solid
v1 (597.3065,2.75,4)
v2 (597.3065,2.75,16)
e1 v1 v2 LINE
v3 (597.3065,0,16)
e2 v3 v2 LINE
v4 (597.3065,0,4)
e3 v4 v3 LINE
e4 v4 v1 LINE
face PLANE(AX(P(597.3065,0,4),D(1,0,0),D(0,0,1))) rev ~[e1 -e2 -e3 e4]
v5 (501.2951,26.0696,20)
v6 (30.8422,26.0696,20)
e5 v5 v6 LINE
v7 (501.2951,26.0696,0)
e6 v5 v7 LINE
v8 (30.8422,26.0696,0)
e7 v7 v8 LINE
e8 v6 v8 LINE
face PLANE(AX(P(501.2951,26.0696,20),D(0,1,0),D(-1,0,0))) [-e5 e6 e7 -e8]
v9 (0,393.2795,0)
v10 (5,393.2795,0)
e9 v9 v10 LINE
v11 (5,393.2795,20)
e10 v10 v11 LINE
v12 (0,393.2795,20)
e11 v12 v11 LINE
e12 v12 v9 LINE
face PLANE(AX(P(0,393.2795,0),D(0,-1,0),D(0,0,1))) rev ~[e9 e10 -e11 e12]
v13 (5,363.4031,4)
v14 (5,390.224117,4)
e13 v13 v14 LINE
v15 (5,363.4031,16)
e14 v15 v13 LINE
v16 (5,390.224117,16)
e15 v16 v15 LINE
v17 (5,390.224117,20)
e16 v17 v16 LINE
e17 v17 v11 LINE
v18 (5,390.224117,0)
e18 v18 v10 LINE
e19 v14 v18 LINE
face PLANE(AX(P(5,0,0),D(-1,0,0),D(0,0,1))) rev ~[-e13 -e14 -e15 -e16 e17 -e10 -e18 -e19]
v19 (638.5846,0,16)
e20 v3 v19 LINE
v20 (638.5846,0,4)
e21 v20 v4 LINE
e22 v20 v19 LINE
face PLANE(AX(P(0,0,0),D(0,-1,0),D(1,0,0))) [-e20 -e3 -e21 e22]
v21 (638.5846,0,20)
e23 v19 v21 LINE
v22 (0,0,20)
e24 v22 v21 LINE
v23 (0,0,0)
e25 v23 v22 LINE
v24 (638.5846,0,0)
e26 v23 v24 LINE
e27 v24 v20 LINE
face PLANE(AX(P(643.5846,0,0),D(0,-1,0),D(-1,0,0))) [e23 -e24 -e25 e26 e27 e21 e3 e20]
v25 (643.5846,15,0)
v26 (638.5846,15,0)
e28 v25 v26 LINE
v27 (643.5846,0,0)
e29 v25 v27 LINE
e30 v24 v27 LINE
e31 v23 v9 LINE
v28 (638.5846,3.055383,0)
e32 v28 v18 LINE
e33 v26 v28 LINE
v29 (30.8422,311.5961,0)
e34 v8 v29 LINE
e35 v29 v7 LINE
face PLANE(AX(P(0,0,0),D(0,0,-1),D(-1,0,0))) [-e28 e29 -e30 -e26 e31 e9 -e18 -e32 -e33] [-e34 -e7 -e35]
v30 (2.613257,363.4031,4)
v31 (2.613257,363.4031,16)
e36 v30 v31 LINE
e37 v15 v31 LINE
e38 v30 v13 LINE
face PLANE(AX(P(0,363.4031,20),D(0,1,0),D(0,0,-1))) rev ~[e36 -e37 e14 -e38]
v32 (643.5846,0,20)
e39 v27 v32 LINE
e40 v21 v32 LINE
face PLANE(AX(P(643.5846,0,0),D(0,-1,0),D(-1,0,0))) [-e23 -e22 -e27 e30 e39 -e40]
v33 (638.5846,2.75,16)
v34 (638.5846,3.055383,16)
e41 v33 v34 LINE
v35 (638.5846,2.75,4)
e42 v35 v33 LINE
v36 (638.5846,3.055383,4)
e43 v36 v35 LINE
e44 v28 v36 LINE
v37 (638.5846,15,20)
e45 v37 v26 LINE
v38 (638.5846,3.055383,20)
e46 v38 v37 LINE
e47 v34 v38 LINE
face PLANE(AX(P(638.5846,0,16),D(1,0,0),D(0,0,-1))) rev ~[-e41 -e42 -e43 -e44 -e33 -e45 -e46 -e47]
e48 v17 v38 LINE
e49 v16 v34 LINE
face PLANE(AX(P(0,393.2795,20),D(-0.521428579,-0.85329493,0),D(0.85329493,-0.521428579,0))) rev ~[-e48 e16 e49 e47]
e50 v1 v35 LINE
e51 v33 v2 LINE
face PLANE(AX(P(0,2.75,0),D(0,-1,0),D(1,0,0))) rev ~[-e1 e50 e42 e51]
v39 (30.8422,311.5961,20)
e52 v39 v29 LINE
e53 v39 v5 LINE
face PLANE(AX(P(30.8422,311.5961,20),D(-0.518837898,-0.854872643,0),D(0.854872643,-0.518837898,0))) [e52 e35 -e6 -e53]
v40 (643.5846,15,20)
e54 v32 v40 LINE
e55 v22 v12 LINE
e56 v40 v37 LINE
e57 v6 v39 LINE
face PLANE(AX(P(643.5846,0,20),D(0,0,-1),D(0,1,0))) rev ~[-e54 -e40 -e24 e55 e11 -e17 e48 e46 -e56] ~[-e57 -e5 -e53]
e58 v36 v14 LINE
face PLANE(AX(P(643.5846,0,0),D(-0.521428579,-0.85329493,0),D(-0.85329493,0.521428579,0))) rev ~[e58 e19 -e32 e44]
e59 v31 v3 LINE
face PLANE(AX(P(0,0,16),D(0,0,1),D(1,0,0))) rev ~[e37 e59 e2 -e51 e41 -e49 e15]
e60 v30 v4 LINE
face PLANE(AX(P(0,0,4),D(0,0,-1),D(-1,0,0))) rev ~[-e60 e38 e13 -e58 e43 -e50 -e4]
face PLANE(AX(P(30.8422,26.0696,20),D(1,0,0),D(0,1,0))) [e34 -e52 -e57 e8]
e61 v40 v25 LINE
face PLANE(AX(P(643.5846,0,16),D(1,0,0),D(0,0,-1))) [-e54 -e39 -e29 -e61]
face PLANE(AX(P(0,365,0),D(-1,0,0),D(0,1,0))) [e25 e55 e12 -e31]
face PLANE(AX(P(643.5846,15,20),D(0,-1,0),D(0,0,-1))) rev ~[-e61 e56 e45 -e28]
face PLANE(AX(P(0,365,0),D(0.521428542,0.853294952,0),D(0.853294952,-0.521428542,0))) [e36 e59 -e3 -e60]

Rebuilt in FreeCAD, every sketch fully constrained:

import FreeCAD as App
import Part
import Sketcher
from FreeCAD import Vector

doc = App.newDocument("Part")
body = doc.addObject("PartDesign::Body", "Body")

# Sketch on XY plane
sketch1 = body.newObject("Sketcher::SketchObject", "Sketch")
sketch1.AttachmentSupport = (doc.getObject("XY_Plane"), [""])
sketch1.MapMode = "FlatFace"
sketch1.addGeometry([
    Part.LineSegment(Vector(0, 365, 0), Vector(0, 0, 0)),
    Part.LineSegment(Vector(0, 0, 0), Vector(597.3065, 0, 0)),
    Part.LineSegment(Vector(597.3065, 0, 0), Vector(0, 365, 0)),
], False)
sketch1.addConstraint([
    Sketcher.Constraint("Coincident", 0, 2, 1, 1),
    Sketcher.Constraint("Coincident", 1, 2, 2, 1),
    Sketcher.Constraint("Coincident", 2, 2, 0, 1),
    Sketcher.Constraint("Vertical", 0),
    Sketcher.Constraint("Horizontal", 1),
    Sketcher.Constraint("Coincident", 0, 2, -1, 1),
    Sketcher.Constraint("DistanceY", 0, 2, 0, 1, 365.0),
    Sketcher.Constraint("Distance", 2, 700.0),
])
pad1 = body.newObject("PartDesign::Pad", "Pad")
pad1.Profile = sketch1
pad1.Length = 20

# Sketch on XY plane
sketch2 = body.newObject("Sketcher::SketchObject", "Sketch001")
sketch2.AttachmentSupport = (doc.getObject("XY_Plane"), [""])
sketch2.MapMode = "FlatFace"
sketch2.AttachmentOffset = App.Placement(Vector(0, 0, 20), App.Rotation())
sketch2.addGeometry([
    Part.LineSegment(Vector(30.8422, 311.5961, 0), Vector(30.8422, 26.0696, 0)),
    Part.LineSegment(Vector(30.8422, 26.0696, 0), Vector(501.2951, 26.0696, 0)),
    Part.LineSegment(Vector(501.2951, 26.0696, 0), Vector(30.8422, 311.5961, 0)),
], False)
sketch2.addConstraint([
    Sketcher.Constraint("Coincident", 0, 2, 1, 1),
    Sketcher.Constraint("Coincident", 1, 2, 2, 1),
    Sketcher.Constraint("Coincident", 2, 2, 0, 1),
    Sketcher.Constraint("Vertical", 0),
    Sketcher.Constraint("Horizontal", 1),
    Sketcher.Constraint("DistanceX", 1, 1, 1, 2, 470.453),
    Sketcher.Constraint("DistanceY", 0, 2, 0, 1, 285.5265),
    Sketcher.Constraint("DistanceX", -1, 1, 1, 2, 501.295),
    Sketcher.Constraint("DistanceY", -1, 1, 2, 2, 311.596),
])
pocket1 = body.newObject("PartDesign::Pocket", "Pocket")
pocket1.Profile = sketch2
pocket1.Length = 161.75

# Sketch on XY plane
sketch3 = body.newObject("Sketcher::SketchObject", "Sketch002")
sketch3.AttachmentSupport = (doc.getObject("XY_Plane"), [""])
sketch3.MapMode = "FlatFace"
sketch3.AttachmentOffset = App.Placement(Vector(0, 0, 20), App.Rotation())
sketch3.addGeometry([
    Part.LineSegment(Vector(0, 393.2795, 0), Vector(0, 365, 0)),
    Part.LineSegment(Vector(0, 365, 0), Vector(597.3065, 0, 0)),
    Part.LineSegment(Vector(597.3065, 0, 0), Vector(643.5846, 0, 0)),
    Part.LineSegment(Vector(643.5846, 0, 0), Vector(0, 393.2795, 0)),
], False)
sketch3.addConstraint([
    Sketcher.Constraint("Coincident", 0, 2, 1, 1),
    Sketcher.Constraint("Coincident", 1, 2, 2, 1),
    Sketcher.Constraint("Coincident", 2, 2, 3, 1),
    Sketcher.Constraint("Coincident", 3, 2, 0, 1),
    Sketcher.Constraint("Vertical", 0),
    Sketcher.Constraint("Horizontal", 2),
    Sketcher.Constraint("PointOnObject", 0, 2, -2),
    Sketcher.Constraint("PointOnObject", 1, 2, -1),
    Sketcher.Constraint("Parallel", 1, 3),
    Sketcher.Constraint("Distance", 1, 700.0),
    Sketcher.Constraint("DistanceY", -1, 1, 0, 2, 365.0),
    Sketcher.Constraint("DistanceX", 2, 1, 2, 2, 46.278),
])
pad2 = body.newObject("PartDesign::Pad", "Pad001")
pad2.Profile = sketch3
pad2.Length = 4
pad2.Reversed = True

# Sketch on XY plane
sketch4 = body.newObject("Sketcher::SketchObject", "Sketch003")
sketch4.AttachmentSupport = (doc.getObject("XY_Plane"), [""])
sketch4.MapMode = "FlatFace"
sketch4.addGeometry([
    Part.LineSegment(Vector(0, 393.2795, 0), Vector(643.5846, 0, 0)),
    Part.LineSegment(Vector(643.5846, 0, 0), Vector(597.3065, 0, 0)),
    Part.LineSegment(Vector(597.3065, 0, 0), Vector(0, 365, 0)),
    Part.LineSegment(Vector(0, 365, 0), Vector(0, 393.2795, 0)),
], False)
sketch4.addConstraint([
    Sketcher.Constraint("Coincident", 0, 2, 1, 1),
    Sketcher.Constraint("Coincident", 1, 2, 2, 1),
    Sketcher.Constraint("Coincident", 2, 2, 3, 1),
    Sketcher.Constraint("Coincident", 3, 2, 0, 1),
    Sketcher.Constraint("Horizontal", 1),
    Sketcher.Constraint("Vertical", 3),
    Sketcher.Constraint("PointOnObject", 0, 2, -1),
    Sketcher.Constraint("PointOnObject", 2, 2, -2),
    Sketcher.Constraint("Parallel", 0, 2),
    Sketcher.Constraint("Distance", 2, 700.0),
    Sketcher.Constraint("DistanceY", -1, 1, 2, 2, 365.0),
    Sketcher.Constraint("DistanceX", 1, 2, 1, 1, 46.278),
])
pad3 = body.newObject("PartDesign::Pad", "Pad002")
pad3.Profile = sketch4
pad3.Length = 4

# Sketch on XZ plane
sketch5 = body.newObject("Sketcher::SketchObject", "Sketch004")
sketch5.AttachmentSupport = (doc.getObject("XZ_Plane"), [""])
sketch5.MapMode = "FlatFace"
sketch5.addGeometry([
    Part.LineSegment(Vector(597.3065, 16, 0), Vector(597.3065, 4, 0)),
    Part.LineSegment(Vector(597.3065, 4, 0), Vector(643.5846, 4, 0)),
    Part.LineSegment(Vector(643.5846, 4, 0), Vector(643.5846, 16, 0)),
    Part.LineSegment(Vector(643.5846, 16, 0), Vector(597.3065, 16, 0)),
], False)
sketch5.addConstraint([
    Sketcher.Constraint("Coincident", 0, 2, 1, 1),
    Sketcher.Constraint("Coincident", 1, 2, 2, 1),
    Sketcher.Constraint("Coincident", 2, 2, 3, 1),
    Sketcher.Constraint("Coincident", 3, 2, 0, 1),
    Sketcher.Constraint("Vertical", 0),
    Sketcher.Constraint("Horizontal", 1),
    Sketcher.Constraint("Vertical", 2),
    Sketcher.Constraint("Horizontal", 3),
    Sketcher.Constraint("DistanceY", 0, 2, 0, 1, 12.0),
    Sketcher.Constraint("DistanceY", -1, 1, 0, 2, 4.0),
    Sketcher.Constraint("DistanceX", 1, 1, 1, 2, 46.278),
    Sketcher.Constraint("DistanceX", -1, 1, 0, 2, 597.3065),
])
pad4 = body.newObject("PartDesign::Pad", "Pad003")
pad4.Profile = sketch5
pad4.Length = 2.75
pad4.Reversed = True

# Sketch on YZ plane
sketch6 = body.newObject("Sketcher::SketchObject", "Sketch005")
sketch6.AttachmentSupport = (doc.getObject("YZ_Plane"), [""])
sketch6.MapMode = "FlatFace"
sketch6.AttachmentOffset = App.Placement(Vector(0, 0, 643.5846), App.Rotation())
sketch6.addGeometry([
    Part.LineSegment(Vector(15, 20, 0), Vector(0, 20, 0)),
    Part.LineSegment(Vector(0, 20, 0), Vector(0, 0, 0)),
    Part.LineSegment(Vector(0, 0, 0), Vector(15, 0, 0)),
    Part.LineSegment(Vector(15, 0, 0), Vector(15, 20, 0)),
], False)
sketch6.addConstraint([
    Sketcher.Constraint("Coincident", 0, 2, 1, 1),
    Sketcher.Constraint("Coincident", 1, 2, 2, 1),
    Sketcher.Constraint("Coincident", 2, 2, 3, 1),
    Sketcher.Constraint("Coincident", 3, 2, 0, 1),
    Sketcher.Constraint("Horizontal", 0),
    Sketcher.Constraint("Vertical", 1),
    Sketcher.Constraint("Horizontal", 2),
    Sketcher.Constraint("Vertical", 3),
    Sketcher.Constraint("Coincident", 1, 2, -1, 1),
    Sketcher.Constraint("DistanceX", 0, 2, 0, 1, 15.0),
    Sketcher.Constraint("DistanceY", 1, 2, 1, 1, 20.0),
])
pad5 = body.newObject("PartDesign::Pad", "Pad004")
pad5.Profile = sketch6
pad5.Length = 5
pad5.Reversed = True

# Sketch on YZ plane
sketch7 = body.newObject("Sketcher::SketchObject", "Sketch006")
sketch7.AttachmentSupport = (doc.getObject("YZ_Plane"), [""])
sketch7.MapMode = "FlatFace"
sketch7.addGeometry([
    Part.LineSegment(Vector(393.2795, 0, 0), Vector(363.4031, 0, 0)),
    Part.LineSegment(Vector(363.4031, 0, 0), Vector(363.4031, 20, 0)),
    Part.LineSegment(Vector(363.4031, 20, 0), Vector(393.2795, 20, 0)),
    Part.LineSegment(Vector(393.2795, 20, 0), Vector(393.2795, 0, 0)),
], False)
sketch7.addConstraint([
    Sketcher.Constraint("Coincident", 0, 2, 1, 1),
    Sketcher.Constraint("Coincident", 1, 2, 2, 1),
    Sketcher.Constraint("Coincident", 2, 2, 3, 1),
    Sketcher.Constraint("Coincident", 3, 2, 0, 1),
    Sketcher.Constraint("Horizontal", 0),
    Sketcher.Constraint("Vertical", 1),
    Sketcher.Constraint("Horizontal", 2),
    Sketcher.Constraint("Vertical", 3),
    Sketcher.Constraint("PointOnObject", 0, 2, -1),
    Sketcher.Constraint("DistanceY", 1, 1, 1, 2, 20.0),
    Sketcher.Constraint("DistanceX", 0, 2, 0, 1, 29.8764),
    Sketcher.Constraint("DistanceX", -1, 1, 0, 2, 363.403),
])
pad6 = body.newObject("PartDesign::Pad", "Pad005")
pad6.Profile = sketch7
pad6.Length = 5

doc.recompute()
